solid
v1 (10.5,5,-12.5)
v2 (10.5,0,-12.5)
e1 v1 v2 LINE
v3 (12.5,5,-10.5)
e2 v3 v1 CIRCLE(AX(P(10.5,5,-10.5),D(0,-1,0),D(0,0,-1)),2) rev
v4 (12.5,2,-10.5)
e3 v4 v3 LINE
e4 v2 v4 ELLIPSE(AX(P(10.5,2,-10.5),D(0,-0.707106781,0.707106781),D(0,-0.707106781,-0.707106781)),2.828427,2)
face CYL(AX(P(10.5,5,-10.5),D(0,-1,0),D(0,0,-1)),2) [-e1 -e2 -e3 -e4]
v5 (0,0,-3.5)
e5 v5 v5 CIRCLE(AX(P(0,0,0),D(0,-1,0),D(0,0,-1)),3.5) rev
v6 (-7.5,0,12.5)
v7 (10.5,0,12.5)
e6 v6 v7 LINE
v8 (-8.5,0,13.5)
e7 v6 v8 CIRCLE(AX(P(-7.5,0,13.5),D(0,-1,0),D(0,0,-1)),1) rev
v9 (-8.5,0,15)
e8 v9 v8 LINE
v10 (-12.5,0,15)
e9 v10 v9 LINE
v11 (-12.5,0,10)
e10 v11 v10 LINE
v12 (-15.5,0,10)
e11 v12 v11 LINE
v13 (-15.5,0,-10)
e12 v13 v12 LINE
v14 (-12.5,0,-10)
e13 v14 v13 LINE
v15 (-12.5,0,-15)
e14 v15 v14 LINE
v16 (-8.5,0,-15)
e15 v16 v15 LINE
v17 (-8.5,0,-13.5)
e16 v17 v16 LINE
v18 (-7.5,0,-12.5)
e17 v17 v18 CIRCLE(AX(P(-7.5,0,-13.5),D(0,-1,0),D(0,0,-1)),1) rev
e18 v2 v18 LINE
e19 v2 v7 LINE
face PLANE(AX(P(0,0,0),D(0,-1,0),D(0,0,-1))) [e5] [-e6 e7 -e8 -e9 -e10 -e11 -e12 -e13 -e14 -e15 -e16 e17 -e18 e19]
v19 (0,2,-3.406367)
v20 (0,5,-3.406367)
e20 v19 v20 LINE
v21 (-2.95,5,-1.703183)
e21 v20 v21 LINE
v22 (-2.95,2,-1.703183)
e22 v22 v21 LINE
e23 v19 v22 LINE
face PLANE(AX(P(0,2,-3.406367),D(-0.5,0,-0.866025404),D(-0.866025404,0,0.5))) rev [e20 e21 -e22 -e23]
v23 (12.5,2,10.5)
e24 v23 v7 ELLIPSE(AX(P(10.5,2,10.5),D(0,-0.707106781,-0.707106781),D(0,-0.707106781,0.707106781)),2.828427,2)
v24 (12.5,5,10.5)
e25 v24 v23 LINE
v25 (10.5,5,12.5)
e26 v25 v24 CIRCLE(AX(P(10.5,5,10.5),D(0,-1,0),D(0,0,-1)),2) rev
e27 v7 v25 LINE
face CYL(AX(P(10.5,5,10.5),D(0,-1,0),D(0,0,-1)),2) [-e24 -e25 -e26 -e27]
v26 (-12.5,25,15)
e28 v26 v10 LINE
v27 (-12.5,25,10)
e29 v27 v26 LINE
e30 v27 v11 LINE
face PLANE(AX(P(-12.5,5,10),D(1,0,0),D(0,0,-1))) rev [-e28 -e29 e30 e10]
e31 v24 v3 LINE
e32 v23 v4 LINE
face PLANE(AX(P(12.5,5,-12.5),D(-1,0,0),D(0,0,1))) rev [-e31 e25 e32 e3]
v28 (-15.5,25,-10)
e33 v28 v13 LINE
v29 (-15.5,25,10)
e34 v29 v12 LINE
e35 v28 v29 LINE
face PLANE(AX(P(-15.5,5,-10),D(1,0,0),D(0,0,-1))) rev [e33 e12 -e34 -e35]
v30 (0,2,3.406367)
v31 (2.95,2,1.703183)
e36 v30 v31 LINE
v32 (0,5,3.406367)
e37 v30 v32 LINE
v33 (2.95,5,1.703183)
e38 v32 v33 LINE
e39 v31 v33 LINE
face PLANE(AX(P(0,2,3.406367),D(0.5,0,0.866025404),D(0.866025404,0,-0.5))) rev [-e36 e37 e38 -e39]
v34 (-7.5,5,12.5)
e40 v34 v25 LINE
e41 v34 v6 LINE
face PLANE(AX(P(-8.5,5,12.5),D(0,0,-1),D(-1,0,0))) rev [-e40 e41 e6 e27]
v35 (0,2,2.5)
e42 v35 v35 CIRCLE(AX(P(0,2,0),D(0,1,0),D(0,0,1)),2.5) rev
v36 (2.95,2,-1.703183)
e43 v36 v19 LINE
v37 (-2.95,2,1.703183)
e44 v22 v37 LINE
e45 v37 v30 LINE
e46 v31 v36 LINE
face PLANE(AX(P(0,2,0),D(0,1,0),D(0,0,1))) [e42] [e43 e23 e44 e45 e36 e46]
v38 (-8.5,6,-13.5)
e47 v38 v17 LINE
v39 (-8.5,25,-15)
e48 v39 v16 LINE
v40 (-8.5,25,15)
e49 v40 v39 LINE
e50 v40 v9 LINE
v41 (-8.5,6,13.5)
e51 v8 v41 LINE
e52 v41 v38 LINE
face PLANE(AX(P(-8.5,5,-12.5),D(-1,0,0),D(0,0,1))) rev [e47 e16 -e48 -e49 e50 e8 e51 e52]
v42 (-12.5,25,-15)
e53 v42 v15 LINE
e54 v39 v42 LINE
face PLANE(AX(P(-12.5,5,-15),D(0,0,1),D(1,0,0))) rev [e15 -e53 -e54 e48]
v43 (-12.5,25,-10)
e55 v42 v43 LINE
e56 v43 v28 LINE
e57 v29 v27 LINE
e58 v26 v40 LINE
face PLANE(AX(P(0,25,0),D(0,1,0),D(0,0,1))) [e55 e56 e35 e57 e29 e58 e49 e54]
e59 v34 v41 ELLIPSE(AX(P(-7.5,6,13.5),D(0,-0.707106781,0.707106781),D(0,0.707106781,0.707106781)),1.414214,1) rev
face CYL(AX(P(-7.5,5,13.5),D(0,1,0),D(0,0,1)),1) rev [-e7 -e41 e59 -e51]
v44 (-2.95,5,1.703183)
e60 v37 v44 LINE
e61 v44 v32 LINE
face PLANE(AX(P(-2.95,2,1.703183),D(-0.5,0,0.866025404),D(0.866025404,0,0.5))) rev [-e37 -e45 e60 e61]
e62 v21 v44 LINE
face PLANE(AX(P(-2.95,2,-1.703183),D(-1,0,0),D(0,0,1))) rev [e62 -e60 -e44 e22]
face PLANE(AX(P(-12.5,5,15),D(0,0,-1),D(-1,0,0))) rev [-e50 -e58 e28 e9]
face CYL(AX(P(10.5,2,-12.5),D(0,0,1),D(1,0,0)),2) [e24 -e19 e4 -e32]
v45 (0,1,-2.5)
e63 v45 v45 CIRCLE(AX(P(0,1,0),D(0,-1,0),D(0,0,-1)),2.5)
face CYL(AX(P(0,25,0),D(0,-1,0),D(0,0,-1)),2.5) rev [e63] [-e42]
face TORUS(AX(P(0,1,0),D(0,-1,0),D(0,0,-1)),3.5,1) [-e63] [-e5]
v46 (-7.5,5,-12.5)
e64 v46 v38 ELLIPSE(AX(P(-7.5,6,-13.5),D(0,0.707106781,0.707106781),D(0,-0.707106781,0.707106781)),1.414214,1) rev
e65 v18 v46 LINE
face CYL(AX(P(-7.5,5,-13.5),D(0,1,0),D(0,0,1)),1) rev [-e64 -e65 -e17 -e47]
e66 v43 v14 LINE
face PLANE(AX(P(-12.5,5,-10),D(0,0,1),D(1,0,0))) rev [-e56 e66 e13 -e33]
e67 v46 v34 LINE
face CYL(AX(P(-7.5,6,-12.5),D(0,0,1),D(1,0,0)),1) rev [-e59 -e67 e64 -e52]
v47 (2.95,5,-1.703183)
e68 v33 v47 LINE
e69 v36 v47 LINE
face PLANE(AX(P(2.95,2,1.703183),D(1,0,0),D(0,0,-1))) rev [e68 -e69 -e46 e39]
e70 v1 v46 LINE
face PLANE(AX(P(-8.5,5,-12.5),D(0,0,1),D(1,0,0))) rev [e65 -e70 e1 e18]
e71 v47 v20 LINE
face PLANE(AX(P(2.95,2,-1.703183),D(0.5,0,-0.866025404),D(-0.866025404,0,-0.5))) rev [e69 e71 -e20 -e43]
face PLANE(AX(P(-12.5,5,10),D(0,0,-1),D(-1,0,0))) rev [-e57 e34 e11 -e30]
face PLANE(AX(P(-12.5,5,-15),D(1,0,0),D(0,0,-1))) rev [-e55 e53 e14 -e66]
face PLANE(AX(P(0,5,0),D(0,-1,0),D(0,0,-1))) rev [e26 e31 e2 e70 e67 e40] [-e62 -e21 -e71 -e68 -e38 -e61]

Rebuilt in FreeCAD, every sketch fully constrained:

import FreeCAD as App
import Part
import Sketcher

V = App.Vector
Q = App.Units.Quantity


def edges_at(feature, points):
    """Names of the edges that pass closest to the given points."""
    edges = feature.Shape.Edges
    near = lambda p: min(range(len(edges)), key=lambda i: edges[i].distToShape(Part.Vertex(*p))[0])
    return sorted({f"Edge{near(p) + 1}" for p in points})


def add_polygon(sketch, points):
    """Adds a closed chain of lines whose ends are joined by coincident constraints."""
    first, n = sketch.GeometryCount, len(points)
    for a, b in zip(points, points[1:] + points[:1]):
        sketch.addGeometry(Part.LineSegment(App.Vector(*a, 0), App.Vector(*b, 0)), False)
    for i in range(n):
        sketch.addConstraint(Sketcher.Constraint("Coincident", first + i, 2, first + (i + 1) % n, 1))

doc = App.newDocument("Part")
params = doc.addObject("Spreadsheet::Sheet", "Params")
for row, (alias, value) in enumerate([
    ("sketch1_width", "21 mm"),
    ("sketch1_width2", "4 mm"),
    ("sketch1_width3", "3 mm"),
    ("sketch1_height", "25 mm"),
    ("sketch1_height2", "5 mm"),
    ("pad1_length", "5 mm"),
    ("sketch2_width", "3 mm"),
    ("sketch2_width2", "4 mm"),
    ("sketch2_height", "20 mm"),
    ("sketch2_height2", "5 mm"),
    ("pad2_length", "20 mm"),
    ("sketch3_diameter", "5 mm"),
    ("fillet_radius", "1 mm"),
    ("fillet2_radius", "1 mm"),
    ("fillet3_radius", "2 mm"),
    ("pocket2_length", "3 mm"),
], start=1):
    params.set(f"A{row}", alias)
    params.set(f"B{row}", "=" + value)
    params.setAlias(f"B{row}", alias)

body = doc.addObject("PartDesign::Body", "Body")

# Sketch on XZ plane
sketch1 = body.newObject("Sketcher::SketchObject", "Sketch")
sketch1.AttachmentSupport = (doc.getObject("XZ_Plane"), [""])
sketch1.MapMode = "FlatFace"
add_polygon(sketch1, [(-8.5, 12.5), (12.5, 12.5), (12.5, -12.5), (-8.5, -12.5), (-8.5, -15), (-12.5, -15), (-12.5, -10), (-15.5, -10), (-15.5, 10), (-12.5, 10), (-12.5, 15), (-8.5, 15)])  # lines 0-11
sketch1.addConstraint(Sketcher.Constraint("Horizontal", 0))
sketch1.addConstraint(Sketcher.Constraint("Vertical", 1))
sketch1.addConstraint(Sketcher.Constraint("Horizontal", 2))
sketch1.addConstraint(Sketcher.Constraint("Vertical", 3))
sketch1.addConstraint(Sketcher.Constraint("Horizontal", 4))
sketch1.addConstraint(Sketcher.Constraint("Vertical", 5))
sketch1.addConstraint(Sketcher.Constraint("Horizontal", 6))
sketch1.addConstraint(Sketcher.Constraint("Vertical", 7))
sketch1.addConstraint(Sketcher.Constraint("Horizontal", 8))
sketch1.addConstraint(Sketcher.Constraint("Vertical", 9))
sketch1.addConstraint(Sketcher.Constraint("Horizontal", 10))
sketch1.addConstraint(Sketcher.Constraint("Vertical", 11))
sketch1.addConstraint(Sketcher.Constraint("Symmetric", 5, 2, 8, 2, -1))
sketch1.addConstraint(Sketcher.Constraint("Symmetric", 3, 2, 10, 2, -1))
sketch1.addConstraint(Sketcher.Constraint("Equal", 3, 11))
sketch1.addConstraint(Sketcher.Constraint("DistanceX", 0, 1, 0, 2, Q("21 mm")))
sketch1.addConstraint(Sketcher.Constraint("DistanceX", 4, 2, 4, 1, Q("4 mm")))
sketch1.addConstraint(Sketcher.Constraint("DistanceX", 6, 2, 6, 1, Q("3 mm")))
sketch1.addConstraint(Sketcher.Constraint("DistanceY", 1, 2, 1, 1, Q("25 mm")))
sketch1.addConstraint(Sketcher.Constraint("DistanceY", 5, 1, 5, 2, Q("5 mm")))
sketch1.addConstraint(Sketcher.Constraint("DistanceY", 7, 1, 7, 2, Q("20 mm")))
sketch1.addConstraint(Sketcher.Constraint("DistanceX", -1, 1, 0, 2, Q("12.5 mm")))
sketch1.setExpression("Constraints[27]", "Params.sketch1_width")
sketch1.setExpression("Constraints[28]", "Params.sketch1_width2")
sketch1.setExpression("Constraints[29]", "Params.sketch1_width3")
sketch1.setExpression("Constraints[30]", "Params.sketch1_height")
sketch1.setExpression("Constraints[31]", "Params.sketch1_height2")
pad1 = body.newObject("PartDesign::Pad", "Pad")
pad1.Profile = sketch1
pad1.setExpression("Length", "Params.pad1_length")
pad1.Reversed = True

# Sketch on XZ plane
sketch2 = body.newObject("Sketcher::SketchObject", "Sketch001")
sketch2.AttachmentSupport = (doc.getObject("XZ_Plane"), [""])
sketch2.MapMode = "FlatFace"
sketch2.AttachmentOffset = App.Placement(V(0, 0, -5), App.Rotation())
add_polygon(sketch2, [(-15.5, -10), (-15.5, 10), (-12.5, 10), (-12.5, 15), (-8.5, 15), (-8.5, -15), (-12.5, -15), (-12.5, -10)])  # lines 0-7
sketch2.addConstraint(Sketcher.Constraint("Vertical", 0))
sketch2.addConstraint(Sketcher.Constraint("Horizontal", 1))
sketch2.addConstraint(Sketcher.Constraint("Vertical", 2))
sketch2.addConstraint(Sketcher.Constraint("Horizontal", 3))
sketch2.addConstraint(Sketcher.Constraint("Vertical", 4))
sketch2.addConstraint(Sketcher.Constraint("Horizontal", 5))
sketch2.addConstraint(Sketcher.Constraint("Vertical", 6))
sketch2.addConstraint(Sketcher.Constraint("Horizontal", 7))
sketch2.addConstraint(Sketcher.Constraint("Symmetric", 2, 2, 5, 2, -1))
sketch2.addConstraint(Sketcher.Constraint("Equal", 2, 6))
sketch2.addConstraint(Sketcher.Constraint("DistanceX", 1, 1, 1, 2, Q("3 mm")))
sketch2.addConstraint(Sketcher.Constraint("DistanceX", 3, 1, 3, 2, Q("4 mm")))
sketch2.addConstraint(Sketcher.Constraint("DistanceY", 0, 1, 0, 2, Q("20 mm")))
sketch2.addConstraint(Sketcher.Constraint("DistanceY", 2, 1, 2, 2, Q("5 mm")))
sketch2.addConstraint(Sketcher.Constraint("DistanceX", 0, 2, -1, 1, Q("15.5 mm")))
sketch2.setExpression("Constraints[18]", "Params.sketch2_width")
sketch2.setExpression("Constraints[19]", "Params.sketch2_width2")
sketch2.setExpression("Constraints[20]", "Params.sketch2_height")
sketch2.setExpression("Constraints[21]", "Params.sketch2_height2")
pad2 = body.newObject("PartDesign::Pad", "Pad001")
pad2.Profile = sketch2
pad2.setExpression("Length", "Params.pad2_length")
pad2.Reversed = True

# Sketch on XZ plane
sketch3 = body.newObject("Sketcher::SketchObject", "Sketch002")
sketch3.AttachmentSupport = (doc.getObject("XZ_Plane"), [""])
sketch3.MapMode = "FlatFace"
sketch3.addGeometry(Part.Circle(V(0, 0, 0), V(0, 0, 1), 2.5), False)
sketch3.addConstraint(Sketcher.Constraint("Coincident", 0, 3, -1, 1))
sketch3.addConstraint(Sketcher.Constraint("Diameter", 0, Q("5 mm")))
sketch3.setExpression("Constraints[1]", "Params.sketch3_diameter")
pocket1 = body.newObject("PartDesign::Pocket", "Pocket")
pocket1.Profile = sketch3
pocket1.Type = "ThroughAll"
pocket1.Midplane = True
doc.recompute()

fillet = body.newObject("PartDesign::Fillet", "Fillet")
fillet.Base = (pocket1, edges_at(pocket1, [(0, 0, 2.5)]))
fillet.setExpression("Radius", "Params.fillet_radius")
doc.recompute()

fillet2 = body.newObject("PartDesign::Fillet", "Fillet001")
fillet2.Base = (fillet, edges_at(fillet, [(-8.5, 2.5, -12.5), (-8.5, 2.5, 12.5), (-8.5, 5, 0)]))
fillet2.setExpression("Radius", "Params.fillet2_radius")
doc.recompute()

fillet3 = body.newObject("PartDesign::Fillet", "Fillet002")
fillet3.Base = (fillet2, edges_at(fillet2, [(12.5, 0, 0), (12.5, 2.5, -12.5), (12.5, 2.5, 12.5)]))
fillet3.setExpression("Radius", "Params.fillet3_radius")

# Sketch on XZ plane
sketch4 = body.newObject("Sketcher::SketchObject", "Sketch003")
sketch4.AttachmentSupport = (doc.getObject("XZ_Plane"), [""])
sketch4.MapMode = "FlatFace"
sketch4.AttachmentOffset = App.Placement(V(0, 0, -5), App.Rotation())
add_polygon(sketch4, [(2.95, -1.703183), (0, -3.406367), (-2.95, -1.703183), (-2.95, 1.703183), (0, 3.406367), (2.95, 1.703183)])  # lines 0-5
sketch4.addConstraint(Sketcher.Constraint("Vertical", 2))
sketch4.addConstraint(Sketcher.Constraint("Vertical", 5))
sketch4.addConstraint(Sketcher.Constraint("Symmetric", 0, 2, 3, 2, -1, 1))
sketch4.addConstraint(Sketcher.Constraint("Symmetric", 1, 2, 4, 2, -1, 1))
sketch4.addConstraint(Sketcher.Constraint("PointOnObject", 0, 2, -2))
sketch4.addConstraint(Sketcher.Constraint("Parallel", 0, 3))
sketch4.addConstraint(Sketcher.Constraint("Horizontal", 2, 2, 4, 2))
sketch4.addConstraint(Sketcher.Constraint("Angle", 0, Q("-150 deg")))
sketch4.addConstraint(Sketcher.Constraint("DistanceX", 2, 2, 4, 2, Q("5.9 mm")))
sketch4.addConstraint(Sketcher.Constraint("DistanceY", 2, 1, 2, 2, Q("3.406367 mm")))
pocket2 = body.newObject("PartDesign::Pocket", "Pocket001")
pocket2.Profile = sketch4
pocket2.setExpression("Length", "Params.pocket2_length")
pocket2.Reversed = True

doc.recompute()
